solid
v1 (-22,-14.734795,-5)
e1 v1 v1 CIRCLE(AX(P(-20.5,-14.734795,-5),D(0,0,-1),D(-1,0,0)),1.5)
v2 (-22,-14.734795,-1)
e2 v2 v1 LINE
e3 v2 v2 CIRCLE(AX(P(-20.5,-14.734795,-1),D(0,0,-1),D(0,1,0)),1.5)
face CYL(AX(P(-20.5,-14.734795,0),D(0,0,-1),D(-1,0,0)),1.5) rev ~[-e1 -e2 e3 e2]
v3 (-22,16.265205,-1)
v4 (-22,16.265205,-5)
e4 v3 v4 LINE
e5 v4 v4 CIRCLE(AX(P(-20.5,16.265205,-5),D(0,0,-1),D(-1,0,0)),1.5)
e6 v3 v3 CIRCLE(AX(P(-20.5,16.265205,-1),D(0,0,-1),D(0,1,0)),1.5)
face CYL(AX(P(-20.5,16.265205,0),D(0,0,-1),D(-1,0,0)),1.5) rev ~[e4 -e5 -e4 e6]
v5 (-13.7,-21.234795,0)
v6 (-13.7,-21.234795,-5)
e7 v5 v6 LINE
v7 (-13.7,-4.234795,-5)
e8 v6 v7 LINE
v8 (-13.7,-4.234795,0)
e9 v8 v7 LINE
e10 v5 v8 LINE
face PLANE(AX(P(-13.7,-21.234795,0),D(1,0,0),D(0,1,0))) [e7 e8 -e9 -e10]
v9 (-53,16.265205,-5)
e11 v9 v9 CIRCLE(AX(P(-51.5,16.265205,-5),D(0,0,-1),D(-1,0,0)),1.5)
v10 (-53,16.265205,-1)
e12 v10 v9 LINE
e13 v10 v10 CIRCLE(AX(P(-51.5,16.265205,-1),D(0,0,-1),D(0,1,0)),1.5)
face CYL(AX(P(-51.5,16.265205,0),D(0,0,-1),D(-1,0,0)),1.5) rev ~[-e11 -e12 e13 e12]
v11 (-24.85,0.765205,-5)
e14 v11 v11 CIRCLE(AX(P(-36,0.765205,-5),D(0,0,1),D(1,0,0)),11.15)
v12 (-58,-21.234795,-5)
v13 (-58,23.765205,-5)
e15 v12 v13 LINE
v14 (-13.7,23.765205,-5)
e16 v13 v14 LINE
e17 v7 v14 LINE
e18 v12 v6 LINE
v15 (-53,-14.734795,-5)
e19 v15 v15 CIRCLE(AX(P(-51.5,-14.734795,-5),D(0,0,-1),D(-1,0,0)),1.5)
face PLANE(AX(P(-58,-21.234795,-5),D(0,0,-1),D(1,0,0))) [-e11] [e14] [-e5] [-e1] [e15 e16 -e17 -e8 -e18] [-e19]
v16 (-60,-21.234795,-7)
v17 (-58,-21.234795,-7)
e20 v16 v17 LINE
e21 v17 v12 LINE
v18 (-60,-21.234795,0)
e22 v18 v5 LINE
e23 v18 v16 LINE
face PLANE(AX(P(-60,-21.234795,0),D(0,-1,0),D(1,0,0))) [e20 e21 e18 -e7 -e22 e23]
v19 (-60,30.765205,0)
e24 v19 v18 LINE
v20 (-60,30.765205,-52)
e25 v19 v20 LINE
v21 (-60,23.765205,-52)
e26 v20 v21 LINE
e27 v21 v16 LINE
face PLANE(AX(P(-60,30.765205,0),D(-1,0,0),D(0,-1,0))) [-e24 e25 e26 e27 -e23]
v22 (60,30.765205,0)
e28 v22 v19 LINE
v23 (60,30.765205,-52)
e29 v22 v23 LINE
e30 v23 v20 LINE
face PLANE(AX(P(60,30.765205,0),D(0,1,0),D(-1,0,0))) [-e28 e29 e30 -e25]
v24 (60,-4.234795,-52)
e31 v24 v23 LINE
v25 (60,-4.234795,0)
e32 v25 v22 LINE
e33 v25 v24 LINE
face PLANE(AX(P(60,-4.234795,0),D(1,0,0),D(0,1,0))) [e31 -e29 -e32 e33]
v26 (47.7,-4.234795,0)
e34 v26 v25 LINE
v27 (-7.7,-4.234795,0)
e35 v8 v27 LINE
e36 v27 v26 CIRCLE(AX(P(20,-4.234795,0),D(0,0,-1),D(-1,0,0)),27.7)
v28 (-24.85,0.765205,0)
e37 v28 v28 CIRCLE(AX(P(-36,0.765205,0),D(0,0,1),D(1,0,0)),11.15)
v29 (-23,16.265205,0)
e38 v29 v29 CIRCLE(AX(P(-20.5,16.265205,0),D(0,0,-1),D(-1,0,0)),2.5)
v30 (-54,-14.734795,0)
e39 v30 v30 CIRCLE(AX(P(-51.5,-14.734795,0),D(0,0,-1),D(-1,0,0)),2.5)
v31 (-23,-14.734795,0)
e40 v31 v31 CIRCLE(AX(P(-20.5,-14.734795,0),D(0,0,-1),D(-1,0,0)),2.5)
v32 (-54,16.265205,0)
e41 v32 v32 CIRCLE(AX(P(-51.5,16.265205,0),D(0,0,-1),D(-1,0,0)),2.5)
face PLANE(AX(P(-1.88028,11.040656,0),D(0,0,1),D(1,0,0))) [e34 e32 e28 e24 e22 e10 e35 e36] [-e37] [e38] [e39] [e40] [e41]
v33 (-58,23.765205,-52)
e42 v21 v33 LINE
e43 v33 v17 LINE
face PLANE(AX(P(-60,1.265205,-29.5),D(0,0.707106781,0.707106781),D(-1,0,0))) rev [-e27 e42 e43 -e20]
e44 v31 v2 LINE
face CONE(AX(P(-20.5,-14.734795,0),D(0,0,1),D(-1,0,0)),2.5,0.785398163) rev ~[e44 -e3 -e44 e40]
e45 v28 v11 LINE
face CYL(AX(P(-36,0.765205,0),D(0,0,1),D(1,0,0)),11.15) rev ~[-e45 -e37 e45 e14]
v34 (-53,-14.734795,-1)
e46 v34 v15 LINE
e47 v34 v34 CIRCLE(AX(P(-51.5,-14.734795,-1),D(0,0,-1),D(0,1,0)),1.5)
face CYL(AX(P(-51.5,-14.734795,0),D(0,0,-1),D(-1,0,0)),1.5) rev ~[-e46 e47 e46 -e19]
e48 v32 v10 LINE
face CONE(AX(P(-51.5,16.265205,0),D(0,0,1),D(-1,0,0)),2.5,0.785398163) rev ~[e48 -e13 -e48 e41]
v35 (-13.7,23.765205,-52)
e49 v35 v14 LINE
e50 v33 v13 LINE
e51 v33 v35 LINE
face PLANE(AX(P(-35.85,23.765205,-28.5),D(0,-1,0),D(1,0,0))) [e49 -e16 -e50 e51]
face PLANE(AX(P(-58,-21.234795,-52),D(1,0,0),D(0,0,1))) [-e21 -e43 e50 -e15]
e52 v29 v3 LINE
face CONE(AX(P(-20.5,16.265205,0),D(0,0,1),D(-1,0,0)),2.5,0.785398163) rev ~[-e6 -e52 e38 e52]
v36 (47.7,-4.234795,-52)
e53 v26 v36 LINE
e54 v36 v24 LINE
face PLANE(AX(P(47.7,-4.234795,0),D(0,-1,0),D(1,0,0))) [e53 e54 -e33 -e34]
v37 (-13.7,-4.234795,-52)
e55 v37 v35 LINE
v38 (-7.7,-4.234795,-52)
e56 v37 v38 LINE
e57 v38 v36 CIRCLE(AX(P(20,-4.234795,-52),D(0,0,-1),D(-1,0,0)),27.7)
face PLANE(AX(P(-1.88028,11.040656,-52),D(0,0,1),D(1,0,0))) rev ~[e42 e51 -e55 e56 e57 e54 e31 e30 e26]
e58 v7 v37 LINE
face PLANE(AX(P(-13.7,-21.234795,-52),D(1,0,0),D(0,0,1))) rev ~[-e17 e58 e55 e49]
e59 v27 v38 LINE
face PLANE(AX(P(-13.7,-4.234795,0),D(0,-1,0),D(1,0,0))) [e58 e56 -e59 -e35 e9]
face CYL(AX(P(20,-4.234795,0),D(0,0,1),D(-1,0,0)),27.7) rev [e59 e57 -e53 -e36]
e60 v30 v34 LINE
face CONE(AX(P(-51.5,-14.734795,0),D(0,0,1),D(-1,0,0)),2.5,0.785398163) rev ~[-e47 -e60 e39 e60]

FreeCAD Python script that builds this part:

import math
import FreeCAD as App
import Part
import Sketcher

V = App.Vector
Q = App.Units.Quantity


def edges_at(feature, points):
    """Names of the edges that pass closest to the given points."""
    edges = feature.Shape.Edges
    near = lambda p: min(range(len(edges)), key=lambda i: edges[i].distToShape(Part.Vertex(*p))[0])
    return sorted({f"Edge{near(p) + 1}" for p in points})

doc = App.newDocument("Part")
params = doc.addObject("Spreadsheet::Sheet", "Params")
for row, (alias, value) in enumerate([
    ("sketch1_diameter", "22.3 mm"),
    ("sketch1_radius", "27.7 mm"),
    ("sketch1_width", "120 mm"),
    ("sketch1_width2", "6 mm"),
    ("sketch1_height", "35 mm"),
    ("pad1_length", "52 mm"),
    ("sketch2_diameter", "3 mm"),
    ("hole_diameter", "3 mm"),
    ("hole_csink_diameter", "5 mm"),
    ("sketch3_height", "47 mm"),
    ("sketch3_width", "44.3 mm"),
    ("pocket1_length", "45 mm"),
    ("chamfer_size", "45 mm"),
], start=1):
    params.set(f"A{row}", alias)
    params.set(f"B{row}", "=" + value)
    params.setAlias(f"B{row}", alias)

body = doc.addObject("PartDesign::Body", "Body")

sketch1 = body.newObject("Sketcher::SketchObject", "Sketch")
sketch1.AttachmentSupport = (doc.getObject("XY_Plane"), [""])
sketch1.MapMode = "FlatFace"
sketch1.addGeometry([
    Part.LineSegment(V(60, -4, 0), V(60, 31, 0)),
    Part.LineSegment(V(60, 31, 0), V(-60, 31, 0)),
    Part.LineSegment(V(-60, 31, 0), V(-60, -21, 0)),
    Part.LineSegment(V(-60, -21, 0), V(-14, -21, 0)),
    Part.LineSegment(V(-14, -21, 0), V(-14, -4, 0)),
    Part.LineSegment(V(-14, -4, 0), V(-8, -4, 0)),
    Part.ArcOfCircle(Part.Circle(V(20, -4, 0), V(0, 0, 1), 28), math.radians(0), math.radians(180)),
    Part.LineSegment(V(48, -4, 0), V(60, -4, 0)),
    Part.Circle(V(-36, 1, 0), V(0, 0, 1), 11),
], False)
sketch1.addConstraint([
    Sketcher.Constraint("Coincident", 0, 2, 1, 1),
    Sketcher.Constraint("Coincident", 1, 2, 2, 1),
    Sketcher.Constraint("Coincident", 2, 2, 3, 1),
    Sketcher.Constraint("Coincident", 3, 2, 4, 1),
    Sketcher.Constraint("Coincident", 4, 2, 5, 1),
    Sketcher.Constraint("Coincident", 5, 2, 6, 2),
    Sketcher.Constraint("Coincident", 6, 1, 7, 1),
    Sketcher.Constraint("Coincident", 7, 2, 0, 1),
    Sketcher.Constraint("Vertical", 0),
    Sketcher.Constraint("Horizontal", 1),
    Sketcher.Constraint("Vertical", 2),
    Sketcher.Constraint("Horizontal", 3),
    Sketcher.Constraint("Vertical", 4),
    Sketcher.Constraint("Horizontal", 5),
    Sketcher.Constraint("Horizontal", 7),
    Sketcher.Constraint("Horizontal", 6, 3, 4, 2),
    Sketcher.Constraint("Horizontal", 5, 2, 6, 1),
    Sketcher.Constraint("Diameter", 8, Q("22.3 mm")),
    Sketcher.Constraint("Radius", 6, Q("27.7 mm")),
    Sketcher.Constraint("DistanceX", 1, 2, 1, 1, Q("120 mm")),
    Sketcher.Constraint("DistanceX", 5, 1, 5, 2, Q("6 mm")),
    Sketcher.Constraint("DistanceY", 0, 1, 0, 2, Q("35 mm")),
    Sketcher.Constraint("DistanceY", 2, 2, 2, 1, Q("52 mm")),
    Sketcher.Constraint("DistanceX", 3, 1, 3, 2, Q("46.3 mm")),
    Sketcher.Constraint("DistanceX", -1, 1, 6, 3, Q("20 mm")),
    Sketcher.Constraint("DistanceX", 8, 3, -1, 1, Q("36 mm")),
    Sketcher.Constraint("DistanceY", 6, 3, 8, 3, Q("5 mm")),
    Sketcher.Constraint("DistanceY", 6, 3, -1, 1, Q("4.234795 mm")),
])
sketch1.setExpression("Constraints[17]", "Params.sketch1_diameter")
sketch1.setExpression("Constraints[18]", "Params.sketch1_radius")
sketch1.setExpression("Constraints[19]", "Params.sketch1_width")
sketch1.setExpression("Constraints[20]", "Params.sketch1_width2")
sketch1.setExpression("Constraints[21]", "Params.sketch1_height")
pad1 = body.newObject("PartDesign::Pad", "Pad")
pad1.Profile = sketch1
pad1.setExpression("Length", "Params.pad1_length")
pad1.Reversed = True

sketch2 = body.newObject("Sketcher::SketchObject", "Sketch001")
sketch2.AttachmentSupport = (doc.getObject("XY_Plane"), [""])
sketch2.MapMode = "FlatFace"
sketch2.addGeometry([
    Part.Circle(V(-51.5, 16.3, 0), V(0, 0, 1), 1.5),
    Part.Circle(V(-20.5, 16.3, 0), V(0, 0, 1), 1.5),
    Part.Circle(V(-51.5, -14.7, 0), V(0, 0, 1), 1.5),
    Part.Circle(V(-20.5, -14.7, 0), V(0, 0, 1), 1.5),
], False)
sketch2.addConstraint([
    Sketcher.Constraint("Equal", 0, 1),
    Sketcher.Constraint("Equal", 1, 2),
    Sketcher.Constraint("Equal", 2, 3),
    Sketcher.Constraint("Horizontal", 0, 3, 1, 3),
    Sketcher.Constraint("Horizontal", 2, 3, 3, 3),
    Sketcher.Constraint("Vertical", 0, 3, 2, 3),
    Sketcher.Constraint("Vertical", 1, 3, 3, 3),
    Sketcher.Constraint("Diameter", 0, Q("3 mm")),
    Sketcher.Constraint("DistanceX", 0, 3, 1, 3, Q("31 mm")),
    Sketcher.Constraint("DistanceY", 2, 3, 0, 3, Q("31 mm")),
    Sketcher.Constraint("DistanceX", 0, 3, -1, 1, Q("51.5 mm")),
    Sketcher.Constraint("DistanceY", -1, 1, 0, 3, Q("16.265205 mm")),
])
sketch2.setExpression("Constraints[7]", "Params.sketch2_diameter")
doc.recompute()
hole = body.newObject("PartDesign::Hole", "Hole")
hole.Profile = sketch2
hole.ThreadType = "None"
hole.setExpression("Diameter", "Params.hole_diameter")
hole.DepthType = "ThroughAll"
hole.HoleCutType = "Countersink"
hole.setExpression("HoleCutDiameter", "Params.hole_csink_diameter")
hole.HoleCutCountersinkAngle = 90

sketch3 = body.newObject("Sketcher::SketchObject", "Sketch002")
sketch3.AttachmentSupport = (doc.getObject("XZ_Plane"), [""])
sketch3.MapMode = "FlatFace"
sketch3.AttachmentOffset = App.Placement(V(0, 0, 21.234795), App.Rotation())
sketch3.addGeometry([
    Part.LineSegment(V(-58, -5, 0), V(-58, -52, 0)),
    Part.LineSegment(V(-58, -52, 0), V(-14, -52, 0)),
    Part.LineSegment(V(-14, -52, 0), V(-14, -5, 0)),
    Part.LineSegment(V(-14, -5, 0), V(-58, -5, 0)),
], False)
sketch3.addConstraint([
    Sketcher.Constraint("Coincident", 0, 2, 1, 1),
    Sketcher.Constraint("Coincident", 1, 2, 2, 1),
    Sketcher.Constraint("Coincident", 2, 2, 3, 1),
    Sketcher.Constraint("Coincident", 3, 2, 0, 1),
    Sketcher.Constraint("Vertical", 0),
    Sketcher.Constraint("Horizontal", 1),
    Sketcher.Constraint("Vertical", 2),
    Sketcher.Constraint("Horizontal", 3),
    Sketcher.Constraint("DistanceY", 0, 2, 0, 1, Q("47 mm")),
    Sketcher.Constraint("DistanceX", 1, 1, 1, 2, Q("44.3 mm")),
    Sketcher.Constraint("DistanceX", 0, 2, -1, 1, Q("58 mm")),
    Sketcher.Constraint("DistanceY", 0, 2, -1, 1, Q("52 mm")),
])
sketch3.setExpression("Constraints[8]", "Params.sketch3_height")
sketch3.setExpression("Constraints[9]", "Params.sketch3_width")
pocket1 = body.newObject("PartDesign::Pocket", "Pocket")
pocket1.Profile = sketch3
pocket1.setExpression("Length", "Params.pocket1_length")
doc.recompute()

chamfer = body.newObject("PartDesign::Chamfer", "Chamfer")
chamfer.Base = (pocket1, edges_at(pocket1, [(-59, -21.235, -52)]))
chamfer.setExpression("Size", "Params.chamfer_size")

doc.recompute()
